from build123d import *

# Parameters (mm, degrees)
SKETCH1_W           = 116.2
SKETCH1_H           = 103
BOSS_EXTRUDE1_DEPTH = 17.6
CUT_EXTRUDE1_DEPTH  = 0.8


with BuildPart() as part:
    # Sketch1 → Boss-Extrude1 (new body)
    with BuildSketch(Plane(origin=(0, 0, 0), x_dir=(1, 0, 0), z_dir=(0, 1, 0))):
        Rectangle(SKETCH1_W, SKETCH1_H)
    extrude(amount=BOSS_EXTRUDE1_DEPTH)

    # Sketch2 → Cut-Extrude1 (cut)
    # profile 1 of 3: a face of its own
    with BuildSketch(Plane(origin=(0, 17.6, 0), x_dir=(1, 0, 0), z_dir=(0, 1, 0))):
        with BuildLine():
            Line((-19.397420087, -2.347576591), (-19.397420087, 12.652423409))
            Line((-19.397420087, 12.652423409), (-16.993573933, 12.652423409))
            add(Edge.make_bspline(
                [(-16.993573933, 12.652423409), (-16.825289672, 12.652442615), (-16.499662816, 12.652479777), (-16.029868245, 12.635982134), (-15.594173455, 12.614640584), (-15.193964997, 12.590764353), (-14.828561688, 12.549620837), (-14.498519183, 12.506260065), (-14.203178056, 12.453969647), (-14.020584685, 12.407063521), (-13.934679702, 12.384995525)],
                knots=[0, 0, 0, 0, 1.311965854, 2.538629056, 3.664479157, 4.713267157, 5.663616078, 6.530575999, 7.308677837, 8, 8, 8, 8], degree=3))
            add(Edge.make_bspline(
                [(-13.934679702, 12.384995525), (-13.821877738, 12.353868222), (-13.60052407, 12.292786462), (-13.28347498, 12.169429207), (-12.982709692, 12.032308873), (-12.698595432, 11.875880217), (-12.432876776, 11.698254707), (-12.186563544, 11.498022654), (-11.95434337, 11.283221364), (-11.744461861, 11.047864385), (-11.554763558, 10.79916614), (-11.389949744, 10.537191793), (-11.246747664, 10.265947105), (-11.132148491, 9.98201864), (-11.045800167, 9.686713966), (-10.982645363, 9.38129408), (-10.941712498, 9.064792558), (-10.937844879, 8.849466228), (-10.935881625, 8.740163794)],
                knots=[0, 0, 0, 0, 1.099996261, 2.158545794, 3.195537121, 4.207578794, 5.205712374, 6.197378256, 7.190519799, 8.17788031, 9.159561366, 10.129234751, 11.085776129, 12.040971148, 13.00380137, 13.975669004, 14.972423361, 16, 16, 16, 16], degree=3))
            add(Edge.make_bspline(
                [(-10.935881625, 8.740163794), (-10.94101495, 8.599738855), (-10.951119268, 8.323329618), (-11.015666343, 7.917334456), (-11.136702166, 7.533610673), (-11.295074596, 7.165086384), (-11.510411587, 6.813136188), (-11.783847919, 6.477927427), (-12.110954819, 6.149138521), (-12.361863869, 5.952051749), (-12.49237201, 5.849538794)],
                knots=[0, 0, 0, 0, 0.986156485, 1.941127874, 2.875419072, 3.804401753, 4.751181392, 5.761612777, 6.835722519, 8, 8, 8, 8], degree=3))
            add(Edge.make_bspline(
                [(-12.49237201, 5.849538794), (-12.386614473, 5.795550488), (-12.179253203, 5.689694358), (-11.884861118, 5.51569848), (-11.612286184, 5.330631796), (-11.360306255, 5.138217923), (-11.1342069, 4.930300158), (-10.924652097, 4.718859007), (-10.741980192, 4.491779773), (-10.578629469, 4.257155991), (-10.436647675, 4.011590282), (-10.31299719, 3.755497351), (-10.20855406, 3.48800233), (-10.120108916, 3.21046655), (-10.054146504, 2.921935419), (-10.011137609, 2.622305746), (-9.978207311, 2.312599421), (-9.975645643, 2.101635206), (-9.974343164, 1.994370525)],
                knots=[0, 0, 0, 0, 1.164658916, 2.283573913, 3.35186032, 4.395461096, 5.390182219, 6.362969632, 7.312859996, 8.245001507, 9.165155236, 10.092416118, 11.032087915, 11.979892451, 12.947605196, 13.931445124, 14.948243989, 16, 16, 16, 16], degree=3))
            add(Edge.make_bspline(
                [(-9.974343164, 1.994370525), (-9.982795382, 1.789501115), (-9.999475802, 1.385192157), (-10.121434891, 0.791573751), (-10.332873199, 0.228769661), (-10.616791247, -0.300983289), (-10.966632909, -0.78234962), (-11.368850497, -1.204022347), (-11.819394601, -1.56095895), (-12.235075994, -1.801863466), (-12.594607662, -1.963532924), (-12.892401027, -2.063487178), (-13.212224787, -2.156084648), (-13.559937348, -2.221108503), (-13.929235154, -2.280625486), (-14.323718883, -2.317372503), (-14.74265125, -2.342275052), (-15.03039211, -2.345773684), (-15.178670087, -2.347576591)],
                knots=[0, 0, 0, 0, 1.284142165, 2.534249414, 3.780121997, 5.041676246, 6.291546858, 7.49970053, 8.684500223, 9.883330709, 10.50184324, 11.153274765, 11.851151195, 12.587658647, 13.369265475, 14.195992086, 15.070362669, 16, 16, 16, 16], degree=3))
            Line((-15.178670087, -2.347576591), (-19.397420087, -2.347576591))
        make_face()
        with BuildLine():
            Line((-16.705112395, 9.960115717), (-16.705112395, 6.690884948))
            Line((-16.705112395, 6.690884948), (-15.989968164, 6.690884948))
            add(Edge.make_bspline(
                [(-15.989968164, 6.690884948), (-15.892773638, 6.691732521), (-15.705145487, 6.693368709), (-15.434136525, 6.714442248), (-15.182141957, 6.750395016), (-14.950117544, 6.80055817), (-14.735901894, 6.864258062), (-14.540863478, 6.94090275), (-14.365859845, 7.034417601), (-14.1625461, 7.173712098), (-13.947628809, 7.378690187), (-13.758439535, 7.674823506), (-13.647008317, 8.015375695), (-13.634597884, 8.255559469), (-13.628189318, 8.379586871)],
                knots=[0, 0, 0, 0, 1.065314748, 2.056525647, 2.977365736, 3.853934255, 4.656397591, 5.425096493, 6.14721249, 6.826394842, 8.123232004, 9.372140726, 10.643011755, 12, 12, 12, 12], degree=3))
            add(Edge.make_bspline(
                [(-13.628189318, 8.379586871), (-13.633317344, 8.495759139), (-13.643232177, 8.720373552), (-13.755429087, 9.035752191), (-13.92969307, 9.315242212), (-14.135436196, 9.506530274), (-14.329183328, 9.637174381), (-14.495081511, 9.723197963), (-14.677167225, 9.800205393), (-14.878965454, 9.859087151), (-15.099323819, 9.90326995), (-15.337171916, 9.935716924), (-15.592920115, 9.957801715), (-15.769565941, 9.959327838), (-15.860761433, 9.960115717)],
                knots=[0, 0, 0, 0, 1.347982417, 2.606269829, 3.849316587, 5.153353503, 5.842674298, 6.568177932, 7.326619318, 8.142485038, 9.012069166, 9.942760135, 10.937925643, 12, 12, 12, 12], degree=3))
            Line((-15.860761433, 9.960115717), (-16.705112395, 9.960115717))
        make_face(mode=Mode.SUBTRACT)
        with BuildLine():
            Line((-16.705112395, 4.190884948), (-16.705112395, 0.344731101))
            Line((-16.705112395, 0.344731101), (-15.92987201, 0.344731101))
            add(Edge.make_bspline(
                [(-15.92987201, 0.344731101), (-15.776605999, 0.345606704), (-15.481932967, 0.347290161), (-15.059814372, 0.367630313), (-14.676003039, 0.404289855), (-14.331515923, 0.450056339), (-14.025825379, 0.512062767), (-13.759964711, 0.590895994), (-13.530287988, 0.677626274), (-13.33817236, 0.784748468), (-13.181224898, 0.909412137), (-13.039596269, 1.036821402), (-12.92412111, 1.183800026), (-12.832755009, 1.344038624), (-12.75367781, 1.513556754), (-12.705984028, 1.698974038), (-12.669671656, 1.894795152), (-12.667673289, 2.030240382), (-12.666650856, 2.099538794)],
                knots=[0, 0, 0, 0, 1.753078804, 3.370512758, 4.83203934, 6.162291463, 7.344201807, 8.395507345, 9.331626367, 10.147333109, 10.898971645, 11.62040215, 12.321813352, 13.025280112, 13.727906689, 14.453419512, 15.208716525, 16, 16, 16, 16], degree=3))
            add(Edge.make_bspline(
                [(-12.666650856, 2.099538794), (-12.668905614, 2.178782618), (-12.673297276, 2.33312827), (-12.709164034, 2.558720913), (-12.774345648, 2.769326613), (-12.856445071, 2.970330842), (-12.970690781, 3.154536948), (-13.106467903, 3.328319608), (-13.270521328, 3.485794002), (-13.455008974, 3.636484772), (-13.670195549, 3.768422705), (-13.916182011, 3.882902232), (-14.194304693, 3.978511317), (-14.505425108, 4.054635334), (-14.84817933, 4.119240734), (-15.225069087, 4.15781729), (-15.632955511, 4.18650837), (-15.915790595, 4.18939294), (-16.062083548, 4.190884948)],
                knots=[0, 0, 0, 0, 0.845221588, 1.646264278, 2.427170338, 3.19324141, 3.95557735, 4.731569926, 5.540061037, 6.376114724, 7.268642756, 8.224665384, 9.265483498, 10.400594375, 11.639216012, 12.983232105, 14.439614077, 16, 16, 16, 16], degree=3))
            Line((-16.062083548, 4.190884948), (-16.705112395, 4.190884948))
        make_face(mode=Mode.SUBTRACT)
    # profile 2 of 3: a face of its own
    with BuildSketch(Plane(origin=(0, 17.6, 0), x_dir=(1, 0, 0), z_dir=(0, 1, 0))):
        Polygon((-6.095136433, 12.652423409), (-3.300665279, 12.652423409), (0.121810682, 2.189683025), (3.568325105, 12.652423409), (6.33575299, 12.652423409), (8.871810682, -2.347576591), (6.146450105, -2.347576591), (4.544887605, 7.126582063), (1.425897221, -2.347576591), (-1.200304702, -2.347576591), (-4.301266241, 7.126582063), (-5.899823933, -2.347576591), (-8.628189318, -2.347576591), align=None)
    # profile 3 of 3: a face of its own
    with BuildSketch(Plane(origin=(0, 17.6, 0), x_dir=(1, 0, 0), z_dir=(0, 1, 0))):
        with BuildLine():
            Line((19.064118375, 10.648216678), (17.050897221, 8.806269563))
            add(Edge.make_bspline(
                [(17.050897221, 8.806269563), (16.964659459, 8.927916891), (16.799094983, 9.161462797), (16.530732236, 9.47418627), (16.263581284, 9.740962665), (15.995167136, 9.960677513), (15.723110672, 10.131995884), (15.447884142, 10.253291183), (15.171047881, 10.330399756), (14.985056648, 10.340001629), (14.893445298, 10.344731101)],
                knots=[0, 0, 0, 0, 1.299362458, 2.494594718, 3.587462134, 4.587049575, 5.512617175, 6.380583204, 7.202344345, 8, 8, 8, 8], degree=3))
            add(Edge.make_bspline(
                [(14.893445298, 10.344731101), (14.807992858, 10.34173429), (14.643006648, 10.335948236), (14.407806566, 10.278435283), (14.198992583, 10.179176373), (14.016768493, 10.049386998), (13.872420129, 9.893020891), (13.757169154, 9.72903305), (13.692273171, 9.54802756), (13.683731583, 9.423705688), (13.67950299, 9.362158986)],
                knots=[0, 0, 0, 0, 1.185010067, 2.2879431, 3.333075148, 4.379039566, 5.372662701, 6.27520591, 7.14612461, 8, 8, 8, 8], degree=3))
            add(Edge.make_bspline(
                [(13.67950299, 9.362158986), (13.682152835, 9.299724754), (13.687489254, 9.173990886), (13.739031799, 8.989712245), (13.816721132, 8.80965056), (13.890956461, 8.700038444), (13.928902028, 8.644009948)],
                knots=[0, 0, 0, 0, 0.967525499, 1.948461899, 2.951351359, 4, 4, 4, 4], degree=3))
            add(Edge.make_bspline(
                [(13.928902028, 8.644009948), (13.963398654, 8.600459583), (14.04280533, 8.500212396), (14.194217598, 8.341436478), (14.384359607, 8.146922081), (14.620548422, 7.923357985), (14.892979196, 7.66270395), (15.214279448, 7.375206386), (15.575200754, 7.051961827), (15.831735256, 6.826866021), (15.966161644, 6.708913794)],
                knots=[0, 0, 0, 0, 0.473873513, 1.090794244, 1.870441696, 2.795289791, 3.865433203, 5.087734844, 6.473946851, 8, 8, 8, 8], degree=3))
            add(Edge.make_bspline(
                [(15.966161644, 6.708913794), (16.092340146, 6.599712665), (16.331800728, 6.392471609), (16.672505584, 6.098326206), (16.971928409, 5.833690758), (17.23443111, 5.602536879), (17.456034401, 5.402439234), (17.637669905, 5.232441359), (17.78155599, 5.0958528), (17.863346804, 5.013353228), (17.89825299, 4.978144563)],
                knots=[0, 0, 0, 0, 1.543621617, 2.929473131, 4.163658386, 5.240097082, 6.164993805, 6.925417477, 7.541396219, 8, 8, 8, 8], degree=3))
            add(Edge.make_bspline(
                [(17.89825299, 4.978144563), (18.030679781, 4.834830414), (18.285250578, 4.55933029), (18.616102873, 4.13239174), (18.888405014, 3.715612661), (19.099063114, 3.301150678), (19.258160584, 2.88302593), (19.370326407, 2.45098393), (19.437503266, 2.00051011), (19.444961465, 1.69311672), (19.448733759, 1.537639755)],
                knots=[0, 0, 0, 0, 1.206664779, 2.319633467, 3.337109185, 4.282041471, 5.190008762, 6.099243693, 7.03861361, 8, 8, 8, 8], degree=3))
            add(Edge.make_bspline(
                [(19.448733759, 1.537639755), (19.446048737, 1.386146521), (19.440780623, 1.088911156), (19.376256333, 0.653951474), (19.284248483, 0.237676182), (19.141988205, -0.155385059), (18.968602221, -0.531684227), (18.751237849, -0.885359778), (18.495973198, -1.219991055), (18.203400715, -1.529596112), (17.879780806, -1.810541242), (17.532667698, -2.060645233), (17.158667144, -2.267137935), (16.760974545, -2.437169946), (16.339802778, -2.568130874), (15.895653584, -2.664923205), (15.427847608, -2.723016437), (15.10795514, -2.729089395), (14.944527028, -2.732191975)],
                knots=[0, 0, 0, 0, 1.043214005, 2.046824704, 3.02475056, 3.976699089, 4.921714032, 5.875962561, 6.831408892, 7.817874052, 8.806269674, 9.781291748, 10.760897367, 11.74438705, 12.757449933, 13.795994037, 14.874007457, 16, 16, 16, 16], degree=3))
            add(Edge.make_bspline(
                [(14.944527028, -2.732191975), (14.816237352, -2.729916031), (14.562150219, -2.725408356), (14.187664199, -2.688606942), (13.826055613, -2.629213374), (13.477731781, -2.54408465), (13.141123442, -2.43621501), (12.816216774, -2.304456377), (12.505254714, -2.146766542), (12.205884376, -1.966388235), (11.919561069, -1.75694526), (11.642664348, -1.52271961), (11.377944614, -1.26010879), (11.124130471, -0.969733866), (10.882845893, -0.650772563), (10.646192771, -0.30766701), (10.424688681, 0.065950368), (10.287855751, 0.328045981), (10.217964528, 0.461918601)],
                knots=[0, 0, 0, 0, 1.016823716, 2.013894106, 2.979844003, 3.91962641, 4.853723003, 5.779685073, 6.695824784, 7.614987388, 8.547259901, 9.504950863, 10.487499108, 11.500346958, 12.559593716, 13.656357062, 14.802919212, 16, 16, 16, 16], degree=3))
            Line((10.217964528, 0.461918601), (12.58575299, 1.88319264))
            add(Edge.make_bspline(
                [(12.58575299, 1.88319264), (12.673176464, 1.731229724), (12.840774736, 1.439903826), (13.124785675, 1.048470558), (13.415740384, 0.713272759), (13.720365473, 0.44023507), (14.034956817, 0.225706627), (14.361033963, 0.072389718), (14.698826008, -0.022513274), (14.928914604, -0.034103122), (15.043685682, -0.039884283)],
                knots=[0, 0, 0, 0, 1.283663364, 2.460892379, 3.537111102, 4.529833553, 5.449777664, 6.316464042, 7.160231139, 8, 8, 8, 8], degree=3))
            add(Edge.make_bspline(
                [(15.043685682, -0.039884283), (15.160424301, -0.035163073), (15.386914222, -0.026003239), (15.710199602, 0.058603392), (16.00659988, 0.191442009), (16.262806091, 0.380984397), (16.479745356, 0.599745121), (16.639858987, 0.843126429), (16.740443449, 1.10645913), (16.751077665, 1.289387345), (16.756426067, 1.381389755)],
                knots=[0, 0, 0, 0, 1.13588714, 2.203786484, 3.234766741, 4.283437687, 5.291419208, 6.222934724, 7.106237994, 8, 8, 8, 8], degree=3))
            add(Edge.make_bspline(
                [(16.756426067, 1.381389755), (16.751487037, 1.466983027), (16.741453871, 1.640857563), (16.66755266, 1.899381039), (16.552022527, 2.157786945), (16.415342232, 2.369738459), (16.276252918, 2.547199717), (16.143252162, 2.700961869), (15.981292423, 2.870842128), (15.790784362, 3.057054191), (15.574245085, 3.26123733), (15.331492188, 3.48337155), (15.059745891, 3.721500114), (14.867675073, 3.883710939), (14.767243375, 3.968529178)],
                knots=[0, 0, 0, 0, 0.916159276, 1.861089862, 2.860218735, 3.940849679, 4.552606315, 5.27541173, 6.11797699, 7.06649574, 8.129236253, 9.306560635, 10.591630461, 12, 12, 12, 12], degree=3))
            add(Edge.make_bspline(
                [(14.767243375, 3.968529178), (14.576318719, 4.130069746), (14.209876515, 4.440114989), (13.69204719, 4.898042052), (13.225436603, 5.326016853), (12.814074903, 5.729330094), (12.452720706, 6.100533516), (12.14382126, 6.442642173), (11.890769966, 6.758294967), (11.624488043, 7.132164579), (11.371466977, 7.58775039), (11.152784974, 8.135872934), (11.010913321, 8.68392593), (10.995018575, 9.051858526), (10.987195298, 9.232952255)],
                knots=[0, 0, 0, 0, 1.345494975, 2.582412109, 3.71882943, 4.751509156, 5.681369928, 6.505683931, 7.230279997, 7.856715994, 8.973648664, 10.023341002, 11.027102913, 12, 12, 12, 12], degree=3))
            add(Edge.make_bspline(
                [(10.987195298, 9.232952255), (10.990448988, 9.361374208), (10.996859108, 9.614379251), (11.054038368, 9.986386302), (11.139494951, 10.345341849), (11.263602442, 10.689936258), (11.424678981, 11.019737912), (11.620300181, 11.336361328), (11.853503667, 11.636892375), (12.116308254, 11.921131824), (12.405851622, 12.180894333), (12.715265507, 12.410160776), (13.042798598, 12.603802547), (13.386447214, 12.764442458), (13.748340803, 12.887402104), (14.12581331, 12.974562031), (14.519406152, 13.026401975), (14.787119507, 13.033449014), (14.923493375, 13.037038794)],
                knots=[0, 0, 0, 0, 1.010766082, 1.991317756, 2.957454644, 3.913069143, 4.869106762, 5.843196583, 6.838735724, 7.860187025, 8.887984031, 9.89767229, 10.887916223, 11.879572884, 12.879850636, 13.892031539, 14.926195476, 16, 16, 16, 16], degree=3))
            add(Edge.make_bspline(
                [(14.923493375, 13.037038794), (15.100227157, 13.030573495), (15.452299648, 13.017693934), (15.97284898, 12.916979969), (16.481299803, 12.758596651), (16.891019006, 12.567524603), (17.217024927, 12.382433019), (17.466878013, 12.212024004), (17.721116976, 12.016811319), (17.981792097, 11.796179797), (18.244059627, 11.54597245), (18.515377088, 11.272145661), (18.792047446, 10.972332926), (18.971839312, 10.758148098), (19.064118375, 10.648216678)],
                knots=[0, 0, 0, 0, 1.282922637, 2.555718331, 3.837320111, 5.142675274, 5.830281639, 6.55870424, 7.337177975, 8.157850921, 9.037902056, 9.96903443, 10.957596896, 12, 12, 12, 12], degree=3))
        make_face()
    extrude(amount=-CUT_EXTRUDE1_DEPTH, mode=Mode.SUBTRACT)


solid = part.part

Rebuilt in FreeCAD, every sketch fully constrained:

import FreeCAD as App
import Part
import Sketcher
from FreeCAD import Vector

doc = App.newDocument("Part")
body = doc.addObject("PartDesign::Body", "Body")

# Sketch on XZ plane
sketch1 = body.newObject("Sketcher::SketchObject", "Sketch")
sketch1.AttachmentSupport = (doc.getObject("XZ_Plane"), [""])
sketch1.MapMode = "FlatFace"
sketch1.addGeometry(Part.LineSegment(Vector(-58, -52, 0), Vector(-58, 52, 0)), False)
sketch1.addGeometry(Part.LineSegment(Vector(-58, 52, 0), Vector(58, 52, 0)), False)
sketch1.addGeometry(Part.LineSegment(Vector(58, 52, 0), Vector(58, -52, 0)), False)
sketch1.addGeometry(Part.LineSegment(Vector(58, -52, 0), Vector(-58, -52, 0)), False)
sketch1.addConstraint(Sketcher.Constraint("Coincident", 0, 2, 1, 1))
sketch1.addConstraint(Sketcher.Constraint("Coincident", 1, 2, 2, 1))
sketch1.addConstraint(Sketcher.Constraint("Coincident", 2, 2, 3, 1))
sketch1.addConstraint(Sketcher.Constraint("Coincident", 3, 2, 0, 1))
sketch1.addConstraint(Sketcher.Constraint("Vertical", 0))
sketch1.addConstraint(Sketcher.Constraint("Horizontal", 1))
sketch1.addConstraint(Sketcher.Constraint("Vertical", 2))
sketch1.addConstraint(Sketcher.Constraint("Horizontal", 3))
sketch1.addConstraint(Sketcher.Constraint("Symmetric", 0, 2, 2, 2, -1, 1))
sketch1.addConstraint(Sketcher.Constraint("DistanceY", 0, 1, 0, 2, 103.0))
sketch1.addConstraint(Sketcher.Constraint("DistanceX", 1, 1, 1, 2, 116.2))
pad1 = body.newObject("PartDesign::Pad", "Pad")
pad1.Profile = sketch1
pad1.Length = 17.6
pad1.Reversed = True

# Sketch on XZ plane
sketch2 = body.newObject("Sketcher::SketchObject", "Sketch001")
sketch2.AttachmentSupport = (doc.getObject("XZ_Plane"), [""])
sketch2.MapMode = "FlatFace"
sketch2.AttachmentOffset = App.Placement(Vector(0, 0, -17.6), App.Rotation())
sketch2.addGeometry(Part.LineSegment(Vector(-19.39742, -12.652423, 0), Vector(-19.39742, 2.347577, 0)), False)
sketch2.addGeometry(Part.LineSegment(Vector(-19.39742, 2.347577, 0), Vector(-15.17867, 2.347577, 0)), False)
sketch2.addGeometry(Part.BSplineCurve([Vector(-9.974343, -1.994371, 0), Vector(-9.982795, -1.789501, 0), Vector(-9.999476, -1.385192, 0), Vector(-10.121435, -0.791574, 0), Vector(-10.332873, -0.22877, 0), Vector(-10.616791, 0.300983, 0), Vector(-10.966633, 0.78235, 0), Vector(-11.36885, 1.204022, 0), Vector(-11.819395, 1.560959, 0), Vector(-12.235076, 1.801863, 0), Vector(-12.594608, 1.963533, 0), Vector(-12.892401, 2.063487, 0), Vector(-13.212225, 2.156085, 0), Vector(-13.559937, 2.221109, 0), Vector(-13.929235, 2.280625, 0), Vector(-14.323719, 2.317373, 0), Vector(-14.742651, 2.342275, 0), Vector(-15.030392, 2.345774, 0), Vector(-15.17867, 2.347577, 0)], [4, 1, 1, 1, 1, 1, 1, 1, 1, 1, 1, 1, 1, 1, 1, 1, 4], [0, 1.284142165, 2.534249414, 3.780121997, 5.041676246, 6.291546858, 7.49970053, 8.684500223, 9.883330709, 10.50184324, 11.153274765, 11.851151195, 12.587658647, 13.369265475, 14.195992086, 15.070362669, 16], False, 3, [1, 1, 1, 1, 1, 1, 1, 1, 1, 1, 1, 1, 1, 1, 1, 1, 1, 1, 1], False), False)
sketch2.addGeometry(Part.BSplineCurve([Vector(-12.492372, -5.849539, 0), Vector(-12.386614, -5.79555, 0), Vector(-12.179253, -5.689694, 0), Vector(-11.884861, -5.515698, 0), Vector(-11.612286, -5.330632, 0), Vector(-11.360306, -5.138218, 0), Vector(-11.134207, -4.9303, 0), Vector(-10.924652, -4.718859, 0), Vector(-10.74198, -4.49178, 0), Vector(-10.578629, -4.257156, 0), Vector(-10.436648, -4.01159, 0), Vector(-10.312997, -3.755497, 0), Vector(-10.208554, -3.488002, 0), Vector(-10.120109, -3.210467, 0), Vector(-10.054147, -2.921935, 0), Vector(-10.011138, -2.622306, 0), Vector(-9.978207, -2.312599, 0), Vector(-9.975646, -2.101635, 0), Vector(-9.974343, -1.994371, 0)], [4, 1, 1, 1, 1, 1, 1, 1, 1, 1, 1, 1, 1, 1, 1, 1, 4], [0, 1.164658916, 2.283573913, 3.35186032, 4.395461096, 5.390182219, 6.362969632, 7.312859996, 8.245001507, 9.165155236, 10.092416118, 11.032087915, 11.979892451, 12.947605196, 13.931445124, 14.948243989, 16], False, 3, [1, 1, 1, 1, 1, 1, 1, 1, 1, 1, 1, 1, 1, 1, 1, 1, 1, 1, 1], False), False)
sketch2.addGeometry(Part.BSplineCurve([Vector(-10.935882, -8.740164, 0), Vector(-10.941015, -8.599739, 0), Vector(-10.951119, -8.32333, 0), Vector(-11.015666, -7.917334, 0), Vector(-11.136702, -7.533611, 0), Vector(-11.295075, -7.165086, 0), Vector(-11.510412, -6.813136, 0), Vector(-11.783848, -6.477927, 0), Vector(-12.110955, -6.149139, 0), Vector(-12.361864, -5.952052, 0), Vector(-12.492372, -5.849539, 0)], [4, 1, 1, 1, 1, 1, 1, 1, 4], [0, 0.986156485, 1.941127874, 2.875419072, 3.804401753, 4.751181392, 5.761612777, 6.835722519, 8], False, 3, [1, 1, 1, 1, 1, 1, 1, 1, 1, 1, 1], False), False)
sketch2.addGeometry(Part.BSplineCurve([Vector(-13.93468, -12.384996, 0), Vector(-13.821878, -12.353868, 0), Vector(-13.600524, -12.292786, 0), Vector(-13.283475, -12.169429, 0), Vector(-12.98271, -12.032309, 0), Vector(-12.698595, -11.87588, 0), Vector(-12.432877, -11.698255, 0), Vector(-12.186564, -11.498023, 0), Vector(-11.954343, -11.283221, 0), Vector(-11.744462, -11.047864, 0), Vector(-11.554764, -10.799166, 0), Vector(-11.38995, -10.537192, 0), Vector(-11.246748, -10.265947, 0), Vector(-11.132148, -9.982019, 0), Vector(-11.0458, -9.686714, 0), Vector(-10.982645, -9.381294, 0), Vector(-10.941712, -9.064793, 0), Vector(-10.937845, -8.849466, 0), Vector(-10.935882, -8.740164, 0)], [4, 1, 1, 1, 1, 1, 1, 1, 1, 1, 1, 1, 1, 1, 1, 1, 4], [0, 1.099996261, 2.158545794, 3.195537121, 4.207578794, 5.205712374, 6.197378256, 7.190519799, 8.17788031, 9.159561366, 10.129234751, 11.085776129, 12.040971148, 13.00380137, 13.975669004, 14.972423361, 16], False, 3, [1, 1, 1, 1, 1, 1, 1, 1, 1, 1, 1, 1, 1, 1, 1, 1, 1, 1, 1], False), False)
sketch2.addGeometry(Part.BSplineCurve([Vector(-16.993574, -12.652423, 0), Vector(-16.82529, -12.652443, 0), Vector(-16.499663, -12.65248, 0), Vector(-16.029868, -12.635982, 0), Vector(-15.594173, -12.614641, 0), Vector(-15.193965, -12.590764, 0), Vector(-14.828562, -12.549621, 0), Vector(-14.498519, -12.50626, 0), Vector(-14.203178, -12.45397, 0), Vector(-14.020585, -12.407064, 0), Vector(-13.93468, -12.384996, 0)], [4, 1, 1, 1, 1, 1, 1, 1, 4], [0, 1.311965854, 2.538629056, 3.664479157, 4.713267157, 5.663616078, 6.530575999, 7.308677837, 8], False, 3, [1, 1, 1, 1, 1, 1, 1, 1, 1, 1, 1], False), False)
sketch2.addGeometry(Part.LineSegment(Vector(-16.993574, -12.652423, 0), Vector(-19.39742, -12.652423, 0)), False)
sketch2.addGeometry(Part.LineSegment(Vector(-16.705112, -4.190885, 0), Vector(-16.062084, -4.190885, 0)), False)
sketch2.addGeometry(Part.BSplineCurve([Vector(-12.666651, -2.099539, 0), Vector(-12.668906, -2.178783, 0), Vector(-12.673297, -2.333128, 0), Vector(-12.709164, -2.558721, 0), Vector(-12.774346, -2.769327, 0), Vector(-12.856445, -2.970331, 0), Vector(-12.970691, -3.154537, 0), Vector(-13.106468, -3.32832, 0), Vector(-13.270521, -3.485794, 0), Vector(-13.455009, -3.636485, 0), Vector(-13.670196, -3.768423, 0), Vector(-13.916182, -3.882902, 0), Vector(-14.194305, -3.978511, 0), Vector(-14.505425, -4.054635, 0), Vector(-14.848179, -4.119241, 0), Vector(-15.225069, -4.157817, 0), Vector(-15.632956, -4.186508, 0), Vector(-15.915791, -4.189393, 0), Vector(-16.062084, -4.190885, 0)], [4, 1, 1, 1, 1, 1, 1, 1, 1, 1, 1, 1, 1, 1, 1, 1, 4], [0, 0.845221588, 1.646264278, 2.427170338, 3.19324141, 3.95557735, 4.731569926, 5.540061037, 6.376114724, 7.268642756, 8.224665384, 9.265483498, 10.400594375, 11.639216012, 12.983232105, 14.439614077, 16], False, 3, [1, 1, 1, 1, 1, 1, 1, 1, 1, 1, 1, 1, 1, 1, 1, 1, 1, 1, 1], False), False)
sketch2.addGeometry(Part.BSplineCurve([Vector(-15.929872, -0.344731, 0), Vector(-15.776606, -0.345607, 0), Vector(-15.481933, -0.34729, 0), Vector(-15.059814, -0.36763, 0), Vector(-14.676003, -0.40429, 0), Vector(-14.331516, -0.450056, 0), Vector(-14.025825, -0.512063, 0), Vector(-13.759965, -0.590896, 0), Vector(-13.530288, -0.677626, 0), Vector(-13.338172, -0.784748, 0), Vector(-13.181225, -0.909412, 0), Vector(-13.039596, -1.036821, 0), Vector(-12.924121, -1.1838, 0), Vector(-12.832755, -1.344039, 0), Vector(-12.753678, -1.513557, 0), Vector(-12.705984, -1.698974, 0), Vector(-12.669672, -1.894795, 0), Vector(-12.667673, -2.03024, 0), Vector(-12.666651, -2.099539, 0)], [4, 1, 1, 1, 1, 1, 1, 1, 1, 1, 1, 1, 1, 1, 1, 1, 4], [0, 1.753078804, 3.370512758, 4.83203934, 6.162291463, 7.344201807, 8.395507345, 9.331626367, 10.147333109, 10.898971645, 11.62040215, 12.321813352, 13.025280112, 13.727906689, 14.453419512, 15.208716525, 16], False, 3, [1, 1, 1, 1, 1, 1, 1, 1, 1, 1, 1, 1, 1, 1, 1, 1, 1, 1, 1], False), False)
sketch2.addGeometry(Part.LineSegment(Vector(-15.929872, -0.344731, 0), Vector(-16.705112, -0.344731, 0)), False)
sketch2.addGeometry(Part.LineSegment(Vector(-16.705112, -0.344731, 0), Vector(-16.705112, -4.190885, 0)), False)
sketch2.addGeometry(Part.LineSegment(Vector(-16.705112, -9.960116, 0), Vector(-15.860761, -9.960116, 0)), False)
sketch2.addGeometry(Part.BSplineCurve([Vector(-13.628189, -8.379587, 0), Vector(-13.633317, -8.495759, 0), Vector(-13.643232, -8.720374, 0), Vector(-13.755429, -9.035752, 0), Vector(-13.929693, -9.315242, 0), Vector(-14.135436, -9.50653, 0), Vector(-14.329183, -9.637174, 0), Vector(-14.495082, -9.723198, 0), Vector(-14.677167, -9.800205, 0), Vector(-14.878965, -9.859087, 0), Vector(-15.099324, -9.90327, 0), Vector(-15.337172, -9.935717, 0), Vector(-15.59292, -9.957802, 0), Vector(-15.769566, -9.959328, 0), Vector(-15.860761, -9.960116, 0)], [4, 1, 1, 1, 1, 1, 1, 1, 1, 1, 1, 1, 4], [0, 1.347982417, 2.606269829, 3.849316587, 5.153353503, 5.842674298, 6.568177932, 7.326619318, 8.142485038, 9.012069166, 9.942760135, 10.937925643, 12], False, 3, [1, 1, 1, 1, 1, 1, 1, 1, 1, 1, 1, 1, 1, 1, 1], False), False)
sketch2.addGeometry(Part.BSplineCurve([Vector(-15.989968, -6.690885, 0), Vector(-15.892774, -6.691733, 0), Vector(-15.705145, -6.693369, 0), Vector(-15.434137, -6.714442, 0), Vector(-15.182142, -6.750395, 0), Vector(-14.950118, -6.800558, 0), Vector(-14.735902, -6.864258, 0), Vector(-14.540863, -6.940903, 0), Vector(-14.36586, -7.034418, 0), Vector(-14.162546, -7.173712, 0), Vector(-13.947629, -7.37869, 0), Vector(-13.75844, -7.674824, 0), Vector(-13.647008, -8.015376, 0), Vector(-13.634598, -8.255559, 0), Vector(-13.628189, -8.379587, 0)], [4, 1, 1, 1, 1, 1, 1, 1, 1, 1, 1, 1, 4], [0, 1.065314748, 2.056525647, 2.977365736, 3.853934255, 4.656397591, 5.425096493, 6.14721249, 6.826394842, 8.123232004, 9.372140726, 10.643011755, 12], False, 3, [1, 1, 1, 1, 1, 1, 1, 1, 1, 1, 1, 1, 1, 1, 1], False), False)
sketch2.addGeometry(Part.LineSegment(Vector(-15.989968, -6.690885, 0), Vector(-16.705112, -6.690885, 0)), False)
sketch2.addGeometry(Part.LineSegment(Vector(-16.705112, -6.690885, 0), Vector(-16.705112, -9.960116, 0)), False)
sketch2.addGeometry(Part.LineSegment(Vector(-3.300665, -12.652423, 0), Vector(-6.095136, -12.652423, 0)), False)
sketch2.addGeometry(Part.LineSegment(Vector(-6.095136, -12.652423, 0), Vector(-8.628189, 2.347577, 0)), False)
sketch2.addGeometry(Part.LineSegment(Vector(-8.628189, 2.347577, 0), Vector(-5.899824, 2.347577, 0)), False)
sketch2.addGeometry(Part.LineSegment(Vector(-5.899824, 2.347577, 0), Vector(-4.301266, -7.126582, 0)), False)
sketch2.addGeometry(Part.LineSegment(Vector(-4.301266, -7.126582, 0), Vector(-1.200305, 2.347577, 0)), False)
sketch2.addGeometry(Part.LineSegment(Vector(-1.200305, 2.347577, 0), Vector(1.425897, 2.347577, 0)), False)
sketch2.addGeometry(Part.LineSegment(Vector(1.425897, 2.347577, 0), Vector(4.544888, -7.126582, 0)), False)
sketch2.addGeometry(Part.LineSegment(Vector(4.544888, -7.126582, 0), Vector(6.14645, 2.347577, 0)), False)
sketch2.addGeometry(Part.LineSegment(Vector(6.14645, 2.347577, 0), Vector(8.871811, 2.347577, 0)), False)
sketch2.addGeometry(Part.LineSegment(Vector(8.871811, 2.347577, 0), Vector(6.335753, -12.652423, 0)), False)
sketch2.addGeometry(Part.LineSegment(Vector(6.335753, -12.652423, 0), Vector(3.568325, -12.652423, 0)), False)
sketch2.addGeometry(Part.LineSegment(Vector(3.568325, -12.652423, 0), Vector(0.121811, -2.189683, 0)), False)
sketch2.addGeometry(Part.LineSegment(Vector(0.121811, -2.189683, 0), Vector(-3.300665, -12.652423, 0)), False)
sketch2.addGeometry(Part.LineSegment(Vector(17.050897, -8.80627, 0), Vector(19.064118, -10.648217, 0)), False)
sketch2.addGeometry(Part.BSplineCurve([Vector(14.923493, -13.037039, 0), Vector(15.100227, -13.030573, 0), Vector(15.4523, -13.017694, 0), Vector(15.972849, -12.91698, 0), Vector(16.4813, -12.758597, 0), Vector(16.891019, -12.567525, 0), Vector(17.217025, -12.382433, 0), Vector(17.466878, -12.212024, 0), Vector(17.721117, -12.016811, 0), Vector(17.981792, -11.79618, 0), Vector(18.24406, -11.545972, 0), Vector(18.515377, -11.272146, 0), Vector(18.792047, -10.972333, 0), Vector(18.971839, -10.758148, 0), Vector(19.064118, -10.648217, 0)], [4, 1, 1, 1, 1, 1, 1, 1, 1, 1, 1, 1, 4], [0, 1.282922637, 2.555718331, 3.837320111, 5.142675274, 5.830281639, 6.55870424, 7.337177975, 8.157850921, 9.037902056, 9.96903443, 10.957596896, 12], False, 3, [1, 1, 1, 1, 1, 1, 1, 1, 1, 1, 1, 1, 1, 1, 1], False), False)
sketch2.addGeometry(Part.BSplineCurve([Vector(10.987195, -9.232952, 0), Vector(10.990449, -9.361374, 0), Vector(10.996859, -9.614379, 0), Vector(11.054038, -9.986386, 0), Vector(11.139495, -10.345342, 0), Vector(11.263602, -10.689936, 0), Vector(11.424679, -11.019738, 0), Vector(11.6203, -11.336361, 0), Vector(11.853504, -11.636892, 0), Vector(12.116308, -11.921132, 0), Vector(12.405852, -12.180894, 0), Vector(12.715266, -12.410161, 0), Vector(13.042799, -12.603803, 0), Vector(13.386447, -12.764442, 0), Vector(13.748341, -12.887402, 0), Vector(14.125813, -12.974562, 0), Vector(14.519406, -13.026402, 0), Vector(14.78712, -13.033449, 0), Vector(14.923493, -13.037039, 0)], [4, 1, 1, 1, 1, 1, 1, 1, 1, 1, 1, 1, 1, 1, 1, 1, 4], [0, 1.010766082, 1.991317756, 2.957454644, 3.913069143, 4.869106762, 5.843196583, 6.838735724, 7.860187025, 8.887984031, 9.89767229, 10.887916223, 11.879572884, 12.879850636, 13.892031539, 14.926195476, 16], False, 3, [1, 1, 1, 1, 1, 1, 1, 1, 1, 1, 1, 1, 1, 1, 1, 1, 1, 1, 1], False), False)
sketch2.addGeometry(Part.BSplineCurve([Vector(14.767243, -3.968529, 0), Vector(14.576319, -4.13007, 0), Vector(14.209877, -4.440115, 0), Vector(13.692047, -4.898042, 0), Vector(13.225437, -5.326017, 0), Vector(12.814075, -5.72933, 0), Vector(12.452721, -6.100534, 0), Vector(12.143821, -6.442642, 0), Vector(11.89077, -6.758295, 0), Vector(11.624488, -7.132165, 0), Vector(11.371467, -7.58775, 0), Vector(11.152785, -8.135873, 0), Vector(11.010913, -8.683926, 0), Vector(10.995019, -9.051859, 0), Vector(10.987195, -9.232952, 0)], [4, 1, 1, 1, 1, 1, 1, 1, 1, 1, 1, 1, 4], [0, 1.345494975, 2.582412109, 3.71882943, 4.751509156, 5.681369928, 6.505683931, 7.230279997, 7.856715994, 8.973648664, 10.023341002, 11.027102913, 12], False, 3, [1, 1, 1, 1, 1, 1, 1, 1, 1, 1, 1, 1, 1, 1, 1], False), False)
sketch2.addGeometry(Part.BSplineCurve([Vector(16.756426, -1.38139, 0), Vector(16.751487, -1.466983, 0), Vector(16.741454, -1.640858, 0), Vector(16.667553, -1.899381, 0), Vector(16.552023, -2.157787, 0), Vector(16.415342, -2.369738, 0), Vector(16.276253, -2.5472, 0), Vector(16.143252, -2.700962, 0), Vector(15.981292, -2.870842, 0), Vector(15.790784, -3.057054, 0), Vector(15.574245, -3.261237, 0), Vector(15.331492, -3.483372, 0), Vector(15.059746, -3.7215, 0), Vector(14.867675, -3.883711, 0), Vector(14.767243, -3.968529, 0)], [4, 1, 1, 1, 1, 1, 1, 1, 1, 1, 1, 1, 4], [0, 0.916159276, 1.861089862, 2.860218735, 3.940849679, 4.552606315, 5.27541173, 6.11797699, 7.06649574, 8.129236253, 9.306560635, 10.591630461, 12], False, 3, [1, 1, 1, 1, 1, 1, 1, 1, 1, 1, 1, 1, 1, 1, 1], False), False)
sketch2.addGeometry(Part.BSplineCurve([Vector(15.043686, 0.039884, 0), Vector(15.160424, 0.035163, 0), Vector(15.386914, 0.026003, 0), Vector(15.7102, -0.058603, 0), Vector(16.0066, -0.191442, 0), Vector(16.262806, -0.380984, 0), Vector(16.479745, -0.599745, 0), Vector(16.639859, -0.843126, 0), Vector(16.740443, -1.106459, 0), Vector(16.751078, -1.289387, 0), Vector(16.756426, -1.38139, 0)], [4, 1, 1, 1, 1, 1, 1, 1, 4], [0, 1.13588714, 2.203786484, 3.234766741, 4.283437687, 5.291419208, 6.222934724, 7.106237994, 8], False, 3, [1, 1, 1, 1, 1, 1, 1, 1, 1, 1, 1], False), False)
sketch2.addGeometry(Part.BSplineCurve([Vector(12.585753, -1.883193, 0), Vector(12.673176, -1.73123, 0), Vector(12.840775, -1.439904, 0), Vector(13.124786, -1.048471, 0), Vector(13.41574, -0.713273, 0), Vector(13.720365, -0.440235, 0), Vector(14.034957, -0.225707, 0), Vector(14.361034, -0.07239, 0), Vector(14.698826, 0.022513, 0), Vector(14.928915, 0.034103, 0), Vector(15.043686, 0.039884, 0)], [4, 1, 1, 1, 1, 1, 1, 1, 4], [0, 1.283663364, 2.460892379, 3.537111102, 4.529833553, 5.449777664, 6.316464042, 7.160231139, 8], False, 3, [1, 1, 1, 1, 1, 1, 1, 1, 1, 1, 1], False), False)
sketch2.addGeometry(Part.LineSegment(Vector(12.585753, -1.883193, 0), Vector(10.217965, -0.461919, 0)), False)
sketch2.addGeometry(Part.BSplineCurve([Vector(14.944527, 2.732192, 0), Vector(14.816237, 2.729916, 0), Vector(14.56215, 2.725408, 0), Vector(14.187664, 2.688607, 0), Vector(13.826056, 2.629213, 0), Vector(13.477732, 2.544085, 0), Vector(13.141123, 2.436215, 0), Vector(12.816217, 2.304456, 0), Vector(12.505255, 2.146767, 0), Vector(12.205884, 1.966388, 0), Vector(11.919561, 1.756945, 0), Vector(11.642664, 1.52272, 0), Vector(11.377945, 1.260109, 0), Vector(11.12413, 0.969734, 0), Vector(10.882846, 0.650773, 0), Vector(10.646193, 0.307667, 0), Vector(10.424689, -0.06595, 0), Vector(10.287856, -0.328046, 0), Vector(10.217965, -0.461919, 0)], [4, 1, 1, 1, 1, 1, 1, 1, 1, 1, 1, 1, 1, 1, 1, 1, 4], [0, 1.016823716, 2.013894106, 2.979844003, 3.91962641, 4.853723003, 5.779685073, 6.695824784, 7.614987388, 8.547259901, 9.504950863, 10.487499108, 11.500346958, 12.559593716, 13.656357062, 14.802919212, 16], False, 3, [1, 1, 1, 1, 1, 1, 1, 1, 1, 1, 1, 1, 1, 1, 1, 1, 1, 1, 1], False), False)
sketch2.addGeometry(Part.BSplineCurve([Vector(19.448734, -1.53764, 0), Vector(19.446049, -1.386147, 0), Vector(19.440781, -1.088911, 0), Vector(19.376256, -0.653951, 0), Vector(19.284248, -0.237676, 0), Vector(19.141988, 0.155385, 0), Vector(18.968602, 0.531684, 0), Vector(18.751238, 0.88536, 0), Vector(18.495973, 1.219991, 0), Vector(18.203401, 1.529596, 0), Vector(17.879781, 1.810541, 0), Vector(17.532668, 2.060645, 0), Vector(17.158667, 2.267138, 0), Vector(16.760975, 2.43717, 0), Vector(16.339803, 2.568131, 0), Vector(15.895654, 2.664923, 0), Vector(15.427848, 2.723016, 0), Vector(15.107955, 2.729089, 0), Vector(14.944527, 2.732192, 0)], [4, 1, 1, 1, 1, 1, 1, 1, 1, 1, 1, 1, 1, 1, 1, 1, 4], [0, 1.043214005, 2.046824704, 3.02475056, 3.976699089, 4.921714032, 5.875962561, 6.831408892, 7.817874052, 8.806269674, 9.781291748, 10.760897367, 11.74438705, 12.757449933, 13.795994037, 14.874007457, 16], False, 3, [1, 1, 1, 1, 1, 1, 1, 1, 1, 1, 1, 1, 1, 1, 1, 1, 1, 1, 1], False), False)
sketch2.addGeometry(Part.BSplineCurve([Vector(17.898253, -4.978145, 0), Vector(18.03068, -4.83483, 0), Vector(18.285251, -4.55933, 0), Vector(18.616103, -4.132392, 0), Vector(18.888405, -3.715613, 0), Vector(19.099063, -3.301151, 0), Vector(19.258161, -2.883026, 0), Vector(19.370326, -2.450984, 0), Vector(19.437503, -2.00051, 0), Vector(19.444961, -1.693117, 0), Vector(19.448734, -1.53764, 0)], [4, 1, 1, 1, 1, 1, 1, 1, 4], [0, 1.206664779, 2.319633467, 3.337109185, 4.282041471, 5.190008762, 6.099243693, 7.03861361, 8], False, 3, [1, 1, 1, 1, 1, 1, 1, 1, 1, 1, 1], False), False)
sketch2.addGeometry(Part.BSplineCurve([Vector(15.966162, -6.708914, 0), Vector(16.09234, -6.599713, 0), Vector(16.331801, -6.392472, 0), Vector(16.672506, -6.098326, 0), Vector(16.971928, -5.833691, 0), Vector(17.234431, -5.602537, 0), Vector(17.456034, -5.402439, 0), Vector(17.63767, -5.232441, 0), Vector(17.781556, -5.095853, 0), Vector(17.863347, -5.013353, 0), Vector(17.898253, -4.978145, 0)], [4, 1, 1, 1, 1, 1, 1, 1, 4], [0, 1.543621617, 2.929473131, 4.163658386, 5.240097082, 6.164993805, 6.925417477, 7.541396219, 8], False, 3, [1, 1, 1, 1, 1, 1, 1, 1, 1, 1, 1], False), False)
sketch2.addGeometry(Part.BSplineCurve([Vector(13.928902, -8.64401, 0), Vector(13.963399, -8.60046, 0), Vector(14.042805, -8.500212, 0), Vector(14.194218, -8.341436, 0), Vector(14.38436, -8.146922, 0), Vector(14.620548, -7.923358, 0), Vector(14.892979, -7.662704, 0), Vector(15.214279, -7.375206, 0), Vector(15.575201, -7.051962, 0), Vector(15.831735, -6.826866, 0), Vector(15.966162, -6.708914, 0)], [4, 1, 1, 1, 1, 1, 1, 1, 4], [0, 0.473873513, 1.090794244, 1.870441696, 2.795289791, 3.865433203, 5.087734844, 6.473946851, 8], False, 3, [1, 1, 1, 1, 1, 1, 1, 1, 1, 1, 1], False), False)
sketch2.addGeometry(Part.BSplineCurve([Vector(13.679503, -9.362159, 0), Vector(13.682153, -9.299725, 0), Vector(13.687489, -9.173991, 0), Vector(13.739032, -8.989712, 0), Vector(13.816721, -8.809651, 0), Vector(13.890956, -8.700038, 0), Vector(13.928902, -8.64401, 0)], [4, 1, 1, 1, 4], [0, 0.967525499, 1.948461899, 2.951351359, 4], False, 3, [1, 1, 1, 1, 1, 1, 1], False), False)
sketch2.addGeometry(Part.BSplineCurve([Vector(14.893445, -10.344731, 0), Vector(14.807993, -10.341734, 0), Vector(14.643007, -10.335948, 0), Vector(14.407807, -10.278435, 0), Vector(14.198993, -10.179176, 0), Vector(14.016768, -10.049387, 0), Vector(13.87242, -9.893021, 0), Vector(13.757169, -9.729033, 0), Vector(13.692273, -9.548028, 0), Vector(13.683732, -9.423706, 0), Vector(13.679503, -9.362159, 0)], [4, 1, 1, 1, 1, 1, 1, 1, 4], [0, 1.185010067, 2.2879431, 3.333075148, 4.379039566, 5.372662701, 6.27520591, 7.14612461, 8], False, 3, [1, 1, 1, 1, 1, 1, 1, 1, 1, 1, 1], False), False)
sketch2.addGeometry(Part.BSplineCurve([Vector(17.050897, -8.80627, 0), Vector(16.964659, -8.927917, 0), Vector(16.799095, -9.161463, 0), Vector(16.530732, -9.474186, 0), Vector(16.263581, -9.740963, 0), Vector(15.995167, -9.960678, 0), Vector(15.723111, -10.131996, 0), Vector(15.447884, -10.253291, 0), Vector(15.171048, -10.3304, 0), Vector(14.985057, -10.340002, 0), Vector(14.893445, -10.344731, 0)], [4, 1, 1, 1, 1, 1, 1, 1, 4], [0, 1.299362458, 2.494594718, 3.587462134, 4.587049575, 5.512617175, 6.380583204, 7.202344345, 8], False, 3, [1, 1, 1, 1, 1, 1, 1, 1, 1, 1, 1], False), False)
sketch2.addConstraint(Sketcher.Constraint("Block", 2))
sketch2.addConstraint(Sketcher.Constraint("Block", 3))
sketch2.addConstraint(Sketcher.Constraint("Block", 4))
sketch2.addConstraint(Sketcher.Constraint("Block", 5))
sketch2.addConstraint(Sketcher.Constraint("Block", 6))
sketch2.addConstraint(Sketcher.Constraint("Block", 9))
sketch2.addConstraint(Sketcher.Constraint("Block", 10))
sketch2.addConstraint(Sketcher.Constraint("Block", 14))
sketch2.addConstraint(Sketcher.Constraint("Block", 15))
sketch2.addConstraint(Sketcher.Constraint("Block", 32))
sketch2.addConstraint(Sketcher.Constraint("Block", 33))
sketch2.addConstraint(Sketcher.Constraint("Block", 34))
sketch2.addConstraint(Sketcher.Constraint("Block", 35))
sketch2.addConstraint(Sketcher.Constraint("Block", 36))
sketch2.addConstraint(Sketcher.Constraint("Block", 37))
sketch2.addConstraint(Sketcher.Constraint("Block", 39))
sketch2.addConstraint(Sketcher.Constraint("Block", 40))
sketch2.addConstraint(Sketcher.Constraint("Block", 41))
sketch2.addConstraint(Sketcher.Constraint("Block", 42))
sketch2.addConstraint(Sketcher.Constraint("Block", 43))
sketch2.addConstraint(Sketcher.Constraint("Block", 44))
sketch2.addConstraint(Sketcher.Constraint("Block", 45))
sketch2.addConstraint(Sketcher.Constraint("Block", 46))
sketch2.addConstraint(Sketcher.Constraint("Coincident", 0, 2, 1, 1))
sketch2.addConstraint(Sketcher.Constraint("Coincident", 1, 2, 2, 2))
sketch2.addConstraint(Sketcher.Constraint("Coincident", 6, 1, 7, 1))
sketch2.addConstraint(Sketcher.Constraint("Coincident", 7, 2, 0, 1))
sketch2.addConstraint(Sketcher.Constraint("Coincident", 8, 2, 9, 2))
sketch2.addConstraint(Sketcher.Constraint("Coincident", 10, 1, 11, 1))
sketch2.addConstraint(Sketcher.Constraint("Coincident", 11, 2, 12, 1))
sketch2.addConstraint(Sketcher.Constraint("Coincident", 12, 2, 8, 1))
sketch2.addConstraint(Sketcher.Constraint("Coincident", 13, 2, 14, 2))
sketch2.addConstraint(Sketcher.Constraint("Coincident", 15, 1, 16, 1))
sketch2.addConstraint(Sketcher.Constraint("Coincident", 16, 2, 17, 1))
sketch2.addConstraint(Sketcher.Constraint("Coincident", 17, 2, 13, 1))
sketch2.addConstraint(Sketcher.Constraint("Coincident", 18, 2, 19, 1))
sketch2.addConstraint(Sketcher.Constraint("Coincident", 19, 2, 20, 1))
sketch2.addConstraint(Sketcher.Constraint("Coincident", 20, 2, 21, 1))
sketch2.addConstraint(Sketcher.Constraint("Coincident", 21, 2, 22, 1))
sketch2.addConstraint(Sketcher.Constraint("Coincident", 22, 2, 23, 1))
sketch2.addConstraint(Sketcher.Constraint("Coincident", 23, 2, 24, 1))
sketch2.addConstraint(Sketcher.Constraint("Coincident", 24, 2, 25, 1))
sketch2.addConstraint(Sketcher.Constraint("Coincident", 25, 2, 26, 1))
sketch2.addConstraint(Sketcher.Constraint("Coincident", 26, 2, 27, 1))
sketch2.addConstraint(Sketcher.Constraint("Coincident", 27, 2, 28, 1))
sketch2.addConstraint(Sketcher.Constraint("Coincident", 28, 2, 29, 1))
sketch2.addConstraint(Sketcher.Constraint("Coincident", 29, 2, 30, 1))
sketch2.addConstraint(Sketcher.Constraint("Coincident", 30, 2, 18, 1))
sketch2.addConstraint(Sketcher.Constraint("Coincident", 31, 2, 32, 2))
sketch2.addConstraint(Sketcher.Constraint("Coincident", 37, 1, 38, 1))
sketch2.addConstraint(Sketcher.Constraint("Coincident", 38, 2, 39, 2))
sketch2.addConstraint(Sketcher.Constraint("Coincident", 46, 1, 31, 1))
sketch2.addConstraint(Sketcher.Constraint("Vertical", 0))
sketch2.addConstraint(Sketcher.Constraint("Horizontal", 1))
sketch2.addConstraint(Sketcher.Constraint("Horizontal", 7))
sketch2.addConstraint(Sketcher.Constraint("Horizontal", 8))
sketch2.addConstraint(Sketcher.Constraint("Horizontal", 11))
sketch2.addConstraint(Sketcher.Constraint("Vertical", 12))
sketch2.addConstraint(Sketcher.Constraint("Horizontal", 13))
sketch2.addConstraint(Sketcher.Constraint("Horizontal", 16))
sketch2.addConstraint(Sketcher.Constraint("Vertical", 17))
sketch2.addConstraint(Sketcher.Constraint("Horizontal", 18))
sketch2.addConstraint(Sketcher.Constraint("Horizontal", 20))
sketch2.addConstraint(Sketcher.Constraint("Horizontal", 23))
sketch2.addConstraint(Sketcher.Constraint("Horizontal", 26))
sketch2.addConstraint(Sketcher.Constraint("Horizontal", 28))
sketch2.addConstraint(Sketcher.Constraint("Horizontal", 7, 2, 18, 2))
sketch2.addConstraint(Sketcher.Constraint("Horizontal", 1, 2, 19, 2))
sketch2.addConstraint(Sketcher.Constraint("Horizontal", 20, 2, 22, 2))
sketch2.addConstraint(Sketcher.Constraint("Horizontal", 21, 2, 24, 2))
sketch2.addConstraint(Sketcher.Constraint("Horizontal", 23, 2, 25, 2))
sketch2.addConstraint(Sketcher.Constraint("Horizontal", 18, 2, 27, 2))
sketch2.addConstraint(Sketcher.Constraint("Vertical", 12, 2, 16, 2))
sketch2.addConstraint(Sketcher.Constraint("DistanceX", 23, 1, 23, 2, 2.626202))
sketch2.addConstraint(Sketcher.Constraint("DistanceX", 1, 1, 1, 2, 4.21875))
sketch2.addConstraint(Sketcher.Constraint("DistanceX", 8, 1, 8, 2, 0.643029))
sketch2.addConstraint(Sketcher.Constraint("DistanceX", 18, 2, 18, 1, 2.794471))
sketch2.addConstraint(Sketcher.Constraint("DistanceX", 26, 1, 26, 2, 2.725361))
sketch2.addConstraint(Sketcher.Constraint("DistanceY", 21, 2, 29, 2, 4.936899))
sketch2.addConstraint(Sketcher.Constraint("DistanceX", 21, 2, 30, 2, 1.000601))
sketch2.addConstraint(Sketcher.Constraint("Distance", 29, 11.01578))
sketch2.addConstraint(Sketcher.Constraint("DistanceX", 20, 1, 20, 2, 2.728365))
sketch2.addConstraint(Sketcher.Constraint("DistanceX", 28, 2, 28, 1, 2.767428))
sketch2.addConstraint(Sketcher.Constraint("DistanceX", 19, 2, -1, 1, 8.628189))
sketch2.addConstraint(Sketcher.Constraint("DistanceX", -1, 1, 25, 2, 6.14645))
sketch2.addConstraint(Sketcher.Constraint("DistanceX", -1, 1, 29, 2, 0.121811))
sketch2.addConstraint(Sketcher.Constraint("DistanceY", 18, 2, 21, 2, 5.525841))
sketch2.addConstraint(Sketcher.Constraint("DistanceX", 20, 2, 22, 2, 4.699519))
sketch2.addConstraint(Sketcher.Constraint("DistanceX", 21, 2, 22, 2, 3.100962))
sketch2.addConstraint(Sketcher.Constraint("DistanceX", 23, 2, 24, 2, 3.11899))
pocket1 = body.newObject("PartDesign::Pocket", "Pocket")
pocket1.Profile = sketch2
pocket1.Length = 0.8
pocket1.Reversed = True

doc.recompute()
